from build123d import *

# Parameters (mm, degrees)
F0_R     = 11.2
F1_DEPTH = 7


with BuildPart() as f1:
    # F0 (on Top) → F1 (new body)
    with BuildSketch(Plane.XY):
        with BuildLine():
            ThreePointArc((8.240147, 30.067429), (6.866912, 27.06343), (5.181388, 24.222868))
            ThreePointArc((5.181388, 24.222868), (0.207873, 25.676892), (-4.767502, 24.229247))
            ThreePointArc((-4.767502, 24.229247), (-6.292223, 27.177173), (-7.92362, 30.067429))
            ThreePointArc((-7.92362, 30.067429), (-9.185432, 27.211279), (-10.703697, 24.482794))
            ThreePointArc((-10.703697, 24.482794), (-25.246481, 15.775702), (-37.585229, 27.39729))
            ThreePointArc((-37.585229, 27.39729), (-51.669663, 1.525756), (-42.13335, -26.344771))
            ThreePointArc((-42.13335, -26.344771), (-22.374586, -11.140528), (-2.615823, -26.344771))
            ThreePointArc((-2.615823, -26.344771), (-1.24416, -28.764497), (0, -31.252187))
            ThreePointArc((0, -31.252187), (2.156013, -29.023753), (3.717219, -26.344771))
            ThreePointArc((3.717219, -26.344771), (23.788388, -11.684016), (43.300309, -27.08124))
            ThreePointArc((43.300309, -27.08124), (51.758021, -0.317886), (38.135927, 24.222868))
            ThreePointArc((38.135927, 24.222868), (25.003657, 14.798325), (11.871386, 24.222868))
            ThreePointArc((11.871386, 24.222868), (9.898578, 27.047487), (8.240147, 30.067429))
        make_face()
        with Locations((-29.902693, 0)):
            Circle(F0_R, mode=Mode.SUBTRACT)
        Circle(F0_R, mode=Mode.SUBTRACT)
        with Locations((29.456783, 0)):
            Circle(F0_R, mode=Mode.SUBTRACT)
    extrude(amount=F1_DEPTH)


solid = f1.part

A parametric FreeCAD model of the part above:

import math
import FreeCAD as App
import Part
import Sketcher
from FreeCAD import Vector
Q = App.Units.Quantity

doc = App.newDocument("Part")
body = doc.addObject("PartDesign::Body", "Body")

# Sketch on XY plane
sketch1 = body.newObject("Sketcher::SketchObject", "Sketch")
sketch1.AttachmentSupport = (doc.getObject("XY_Plane"), [""])
sketch1.MapMode = "FlatFace"
sketch1.addGeometry([
    Part.ArcOfCircle(Part.Circle(Vector(-21, 41, 0), Vector(0, 0, 1), 31), math.radians(-33.74), math.radians(-21.51)),  # 0
    Part.ArcOfCircle(Part.Circle(Vector(0, 16, 0), Vector(0, 0, 1), 9), math.radians(57), math.radians(122)),  # 1
    Part.ArcOfCircle(Part.Circle(Vector(-86, -16, 0), Vector(0, 0, 1), 91), math.radians(26.3), math.radians(30.49)),  # 2
    Part.ArcOfCircle(Part.Circle(Vector(-40, 42, 0), Vector(0, 0, 1), 34), math.radians(-31.72), math.radians(-21.21)),  # 3
    Part.ArcOfCircle(Part.Circle(Vector(-24, 30, 0), Vector(0, 0, 1), 14), math.radians(-170), math.radians(-22)),  # 4
    Part.ArcOfCircle(Part.Circle(Vector(-15, -2, 0), Vector(0, 0, 1), 37), math.radians(128), math.radians(223)),  # 5
    Part.ArcOfCircle(Part.Circle(Vector(-22, -32, 0), Vector(0, 0, 1), 20), math.radians(15), math.radians(165)),  # 6
    Part.ArcOfCircle(Part.Circle(Vector(-48, -54, 0), Vector(0, 0, 1), 54), math.radians(25.08), math.radians(31.04)),  # 7
    Part.ArcOfCircle(Part.Circle(Vector(-8, -21, 0), Vector(0, 0, 1), 13), math.radians(-51), math.radians(-23)),  # 8
    Part.ArcOfCircle(Part.Circle(Vector(23, -32, 0), Vector(0, 0, 1), 21), math.radians(15), math.radians(163)),  # 9
    Part.ArcOfCircle(Part.Circle(Vector(16, -4, 0), Vector(0, 0, 1), 36), math.radians(-41), math.radians(52)),  # 10
    Part.ArcOfCircle(Part.Circle(Vector(25, 29, 0), Vector(0, 0, 1), 14), math.radians(-161), math.radians(-19)),  # 11
    Part.ArcOfCircle(Part.Circle(Vector(37, 44, 0), Vector(0, 0, 1), 32), math.radians(-154.31), math.radians(-141.99)),  # 12
    Part.Circle(Vector(-30, 0, 0), Vector(0, 0, 1), 11),  # 13
    Part.Circle(Vector(0, 0, 0), Vector(0, 0, 1), 11),  # 14
    Part.Circle(Vector(29, 0, 0), Vector(0, 0, 1), 11),  # 15
], False)
sketch1.addConstraint([
    Sketcher.Constraint("Coincident", 0, 1, 1, 1),
    Sketcher.Constraint("Coincident", 1, 2, 2, 1),
    Sketcher.Constraint("Coincident", 2, 2, 3, 2),
    Sketcher.Constraint("Coincident", 3, 1, 4, 2),
    Sketcher.Constraint("Coincident", 4, 1, 5, 1),
    Sketcher.Constraint("Coincident", 5, 2, 6, 2),
    Sketcher.Constraint("Coincident", 6, 1, 7, 2),
    Sketcher.Constraint("Coincident", 7, 1, 8, 1),
    Sketcher.Constraint("Coincident", 8, 2, 9, 2),
    Sketcher.Constraint("Coincident", 9, 1, 10, 1),
    Sketcher.Constraint("Coincident", 10, 2, 11, 2),
    Sketcher.Constraint("Coincident", 11, 1, 12, 2),
    Sketcher.Constraint("Coincident", 12, 1, 0, 2),
    Sketcher.Constraint("Coincident", 14, 3, -1, 1),
    Sketcher.Constraint("Equal", 13, 14),
    Sketcher.Constraint("Equal", 14, 15),
    Sketcher.Constraint("PointOnObject", 13, 3, -1),
    Sketcher.Constraint("PointOnObject", 15, 3, -1),
    Sketcher.Constraint("PointOnObject", 7, 1, -2),
    Sketcher.Constraint("Horizontal", 5, 2, 6, 1),
    Sketcher.Constraint("Horizontal", 6, 1, 8, 2),
    Sketcher.Constraint("Horizontal", 0, 1, 10, 2),
    Sketcher.Constraint("Horizontal", 10, 2, 11, 1),
    Sketcher.Constraint("Horizontal", 2, 2, 12, 1),
    Sketcher.Constraint("Diameter", 13, Q("22.4 mm")),
    Sketcher.Constraint("Radius", 5, Q("36.604129 mm")),
    Sketcher.Constraint("Radius", 6, Q("20.44093 mm")),
    Sketcher.Constraint("DistanceX", 0, 1, 11, 1, Q("6.689998 mm")),
    Sketcher.Constraint("Radius", 0, Q("30.952255 mm")),
    Sketcher.Constraint("Radius", 1, Q("9.253305 mm")),
    Sketcher.Constraint("Radius", 2, Q("90.833216 mm")),
    Sketcher.Constraint("Radius", 3, Q("34.033845 mm")),
    Sketcher.Constraint("Radius", 4, Q("14.050697 mm")),
    Sketcher.Constraint("Radius", 7, Q("53.545326 mm")),
    Sketcher.Constraint("Radius", 8, Q("12.884656 mm")),
    Sketcher.Constraint("Radius", 9, Q("20.549707 mm")),
    Sketcher.Constraint("Radius", 10, Q("35.500707 mm")),
    Sketcher.Constraint("Radius", 11, Q("13.861603 mm")),
    Sketcher.Constraint("Radius", 12, Q("32.072445 mm")),
    Sketcher.Constraint("DistanceX", 1, 2, -1, 1, Q("4.767502 mm")),
    Sketcher.Constraint("DistanceY", 2, 3, 1, 3, Q("32.4428 mm")),
    Sketcher.Constraint("DistanceY", 5, 3, 3, 3, Q("43.939201 mm")),
    Sketcher.Constraint("DistanceY", 7, 3, 2, 3, Q("37.932099 mm")),
    Sketcher.Constraint("DistanceX", 6, 3, 9, 3, Q("45.7807 mm")),
    Sketcher.Constraint("DistanceY", 5, 2, 5, 3, Q("24.783801 mm")),
    Sketcher.Constraint("DistanceX", 8, 2, 10, 3, Q("12.718601 mm")),
    Sketcher.Constraint("DistanceX", -1, 1, 1, 3, Q("0.20194 mm")),
    Sketcher.Constraint("DistanceY", -1, 1, 1, 3, Q("16.423589 mm")),
    Sketcher.Constraint("DistanceY", -1, 1, 3, 3, Q("42.378231 mm")),
    Sketcher.Constraint("DistanceX", 4, 3, -1, 1, Q("23.731979 mm")),
    Sketcher.Constraint("DistanceY", -1, 1, 4, 3, Q("29.744538 mm")),
    Sketcher.Constraint("DistanceY", 6, 3, -1, 1, Q("31.581458 mm")),
    Sketcher.Constraint("DistanceX", 8, 3, -1, 1, Q("8.114769 mm")),
    Sketcher.Constraint("DistanceX", -1, 1, 10, 3, Q("16.43582 mm")),
    Sketcher.Constraint("DistanceY", -1, 1, 12, 3, Q("43.973349 mm")),
    Sketcher.Constraint("DistanceY", -1, 1, 0, 1, Q("24.222868 mm")),
    Sketcher.Constraint("DistanceX", 2, 2, -1, 1, Q("7.92362 mm")),
    Sketcher.Constraint("DistanceX", -1, 1, 9, 1, Q("43.300309 mm")),
    Sketcher.Constraint("DistanceX", 13, 3, 5, 3, Q("14.706779 mm")),
    Sketcher.Constraint("DistanceX", 9, 3, 15, 3, Q("6.050669 mm")),
])
pad1 = body.newObject("PartDesign::Pad", "Pad")
pad1.Profile = sketch1
pad1.Length = 7

doc.recompute()
